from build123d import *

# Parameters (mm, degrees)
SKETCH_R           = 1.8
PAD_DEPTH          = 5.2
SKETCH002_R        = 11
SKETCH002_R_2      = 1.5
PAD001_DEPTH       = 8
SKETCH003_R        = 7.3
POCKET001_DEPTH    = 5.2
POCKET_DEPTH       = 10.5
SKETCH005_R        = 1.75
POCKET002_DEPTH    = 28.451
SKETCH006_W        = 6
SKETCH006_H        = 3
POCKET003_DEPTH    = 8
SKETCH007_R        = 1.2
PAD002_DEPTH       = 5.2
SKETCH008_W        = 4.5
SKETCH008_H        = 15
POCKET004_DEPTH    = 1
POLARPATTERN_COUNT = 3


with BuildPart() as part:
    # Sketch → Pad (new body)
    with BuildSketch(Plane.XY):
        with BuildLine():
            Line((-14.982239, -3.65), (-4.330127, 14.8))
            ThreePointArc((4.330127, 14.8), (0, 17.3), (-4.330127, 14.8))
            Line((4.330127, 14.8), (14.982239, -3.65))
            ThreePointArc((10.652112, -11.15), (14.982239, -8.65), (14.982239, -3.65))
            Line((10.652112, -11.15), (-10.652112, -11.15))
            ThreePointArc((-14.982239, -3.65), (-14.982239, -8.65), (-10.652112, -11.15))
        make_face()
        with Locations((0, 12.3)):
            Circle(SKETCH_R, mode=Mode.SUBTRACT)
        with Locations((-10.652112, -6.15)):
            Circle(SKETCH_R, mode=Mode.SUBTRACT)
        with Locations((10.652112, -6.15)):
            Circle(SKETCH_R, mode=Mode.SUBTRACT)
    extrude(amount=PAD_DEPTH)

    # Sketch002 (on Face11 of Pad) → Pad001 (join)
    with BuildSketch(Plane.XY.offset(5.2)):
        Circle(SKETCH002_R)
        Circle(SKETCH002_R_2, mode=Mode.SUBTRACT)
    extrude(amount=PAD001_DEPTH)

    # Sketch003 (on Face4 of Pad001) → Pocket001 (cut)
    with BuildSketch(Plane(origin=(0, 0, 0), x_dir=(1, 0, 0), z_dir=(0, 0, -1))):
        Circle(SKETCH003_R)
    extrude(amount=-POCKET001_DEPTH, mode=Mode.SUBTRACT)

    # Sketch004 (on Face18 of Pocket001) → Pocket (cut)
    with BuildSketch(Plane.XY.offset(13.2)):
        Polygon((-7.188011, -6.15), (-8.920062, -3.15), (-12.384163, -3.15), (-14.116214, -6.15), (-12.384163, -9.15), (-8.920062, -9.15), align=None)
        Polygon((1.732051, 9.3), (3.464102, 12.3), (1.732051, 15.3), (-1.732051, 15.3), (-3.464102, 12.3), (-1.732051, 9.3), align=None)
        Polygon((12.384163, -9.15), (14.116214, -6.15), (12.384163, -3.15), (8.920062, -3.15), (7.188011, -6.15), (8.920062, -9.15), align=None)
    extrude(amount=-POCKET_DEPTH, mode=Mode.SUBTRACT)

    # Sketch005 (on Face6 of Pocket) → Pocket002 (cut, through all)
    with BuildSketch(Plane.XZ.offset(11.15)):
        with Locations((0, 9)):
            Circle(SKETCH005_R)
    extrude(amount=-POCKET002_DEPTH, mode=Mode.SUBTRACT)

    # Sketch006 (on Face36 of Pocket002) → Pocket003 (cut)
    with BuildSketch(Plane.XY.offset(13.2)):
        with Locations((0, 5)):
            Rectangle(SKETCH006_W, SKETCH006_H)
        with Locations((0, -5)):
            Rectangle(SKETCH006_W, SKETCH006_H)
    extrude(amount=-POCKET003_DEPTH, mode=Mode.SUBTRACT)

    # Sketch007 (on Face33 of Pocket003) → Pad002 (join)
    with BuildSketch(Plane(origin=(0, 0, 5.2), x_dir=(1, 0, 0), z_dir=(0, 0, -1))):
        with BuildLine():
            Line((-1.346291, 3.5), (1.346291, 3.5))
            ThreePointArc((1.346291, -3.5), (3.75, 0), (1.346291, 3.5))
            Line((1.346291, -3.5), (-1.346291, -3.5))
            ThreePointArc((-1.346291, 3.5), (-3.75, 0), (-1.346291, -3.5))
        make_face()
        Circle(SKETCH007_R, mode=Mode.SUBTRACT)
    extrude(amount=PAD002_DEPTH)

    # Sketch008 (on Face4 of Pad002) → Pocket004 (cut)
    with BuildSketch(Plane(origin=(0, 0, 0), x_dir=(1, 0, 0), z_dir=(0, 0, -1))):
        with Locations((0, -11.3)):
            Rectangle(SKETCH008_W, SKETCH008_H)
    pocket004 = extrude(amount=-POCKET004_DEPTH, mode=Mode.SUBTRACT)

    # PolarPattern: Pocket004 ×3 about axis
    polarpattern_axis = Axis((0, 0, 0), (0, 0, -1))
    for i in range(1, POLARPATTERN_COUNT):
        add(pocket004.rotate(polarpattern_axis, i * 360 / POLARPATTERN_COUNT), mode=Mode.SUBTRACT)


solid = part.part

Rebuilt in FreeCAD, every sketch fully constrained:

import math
import FreeCAD as App
import Part
import Sketcher
Q = App.Units.Quantity

doc = App.newDocument("Part")
body = doc.addObject("PartDesign::Body", "Body")

# Sketch on XY plane
sketch1 = doc.addObject("Sketcher::SketchObject", "Sketch")
body.addObject(sketch1)
sketch1.AttachmentSupport = (doc.XY_Plane, [""])
sketch1.MapMode = "FlatFace"
sketch1.addGeometry([
    Part.LineSegment(App.Vector(-4.3, 14.8, 0), App.Vector(-15, -3.6, 0)),  # 0
    Part.ArcOfCircle(Part.Circle(App.Vector(-10.7, -6.2, 0), App.Vector(0, 0, 1), 5), math.radians(150), math.radians(270)),  # 1
    Part.LineSegment(App.Vector(-10.7, -11.2, 0), App.Vector(10.7, -11.2, 0)),  # 2
    Part.ArcOfCircle(Part.Circle(App.Vector(10.7, -6.2, 0), App.Vector(0, 0, 1), 5), math.radians(-90), math.radians(30)),  # 3
    Part.LineSegment(App.Vector(15, -3.6, 0), App.Vector(4.3, 14.8, 0)),  # 4
    Part.ArcOfCircle(Part.Circle(App.Vector(0, 12.3, 0), App.Vector(0, 0, 1), 5), math.radians(30), math.radians(150)),  # 5
    Part.Circle(App.Vector(10.7, -6.2, 0), App.Vector(0, 0, 1), 1.8),  # 6
    Part.Circle(App.Vector(-10.7, -6.2, 0), App.Vector(0, 0, 1), 1.8),  # 7
    Part.Circle(App.Vector(0, 12.3, 0), App.Vector(0, 0, 1), 1.8),  # 8
], False)
sketch1.addConstraint([
    Sketcher.Constraint("Tangent", 0, 2, 1, 1),
    Sketcher.Constraint("Tangent", 1, 2, 2, 1),
    Sketcher.Constraint("Tangent", 2, 2, 3, 1),
    Sketcher.Constraint("Tangent", 3, 2, 4, 1),
    Sketcher.Constraint("Tangent", 4, 2, 5, 1),
    Sketcher.Constraint("Tangent", 5, 2, 0, 1),
    Sketcher.Constraint("Horizontal", 2),
    Sketcher.Constraint("Coincident", 6, 3, 3, 3),
    Sketcher.Constraint("Coincident", 7, 3, 1, 3),
    Sketcher.Constraint("Coincident", 8, 3, 5, 3),
    Sketcher.Constraint("Equal", 1, 3),
    Sketcher.Constraint("Equal", 3, 5),
    Sketcher.Constraint("Equal", 6, 7),
    Sketcher.Constraint("Equal", 7, 8),
    Sketcher.Constraint("Symmetric", 0, 2, 3, 2, -2),
    Sketcher.Constraint("Radius", 1, Q("5 mm")),
    Sketcher.Constraint("Diameter", 6, Q("3.6 mm")),
    Sketcher.Constraint("Angle", 0, Q("-119.999999 deg")),
    Sketcher.Constraint("DistanceY", -1, 1, 5, 3, Q("12.3 mm")),
    Sketcher.Constraint("DistanceY", 1, 3, -1, 1, Q("6.15 mm")),
])
pad1 = doc.addObject("PartDesign::Pad", "Pad")
body.addObject(pad1)
pad1.Profile = sketch1
pad1.Length = 5.2

# Sketch on XY plane
sketch2 = doc.addObject("Sketcher::SketchObject", "Sketch001")
body.addObject(sketch2)
sketch2.AttachmentSupport = (doc.XY_Plane, [""])
sketch2.MapMode = "FlatFace"
sketch2.AttachmentOffset = App.Placement(App.Vector(0, 0, 5.2), App.Rotation())
sketch2.addGeometry([
    Part.Circle(App.Vector(0, 0, 0), App.Vector(0, 0, 1), 11),
    Part.Circle(App.Vector(0, 0, 0), App.Vector(0, 0, 1), 1.5),
], False)
sketch2.addConstraint([
    Sketcher.Constraint("Coincident", 0, 3, -1, 1),
    Sketcher.Constraint("Coincident", 1, 3, -1, 1),
    Sketcher.Constraint("Diameter", 0, Q("22 mm")),
    Sketcher.Constraint("Diameter", 1, Q("3 mm")),
])
pad2 = doc.addObject("PartDesign::Pad", "Pad001")
body.addObject(pad2)
pad2.Profile = sketch2
pad2.Length = 8

# Sketch on XY plane
sketch3 = doc.addObject("Sketcher::SketchObject", "Sketch002")
body.addObject(sketch3)
sketch3.AttachmentSupport = (doc.XY_Plane, [""])
sketch3.MapMode = "FlatFace"
sketch3.addGeometry(Part.Circle(App.Vector(0, 0, 0), App.Vector(0, 0, 1), 7), False)
sketch3.addConstraint([
    Sketcher.Constraint("Coincident", 0, 3, -1, 1),
    Sketcher.Constraint("Diameter", 0, Q("14.6 mm")),
])
pocket1 = doc.addObject("PartDesign::Pocket", "Pocket")
body.addObject(pocket1)
pocket1.Profile = sketch3
pocket1.Length = 5.2
pocket1.Reversed = True

# Sketch on XY plane
sketch4 = doc.addObject("Sketcher::SketchObject", "Sketch003")
body.addObject(sketch4)
sketch4.AttachmentSupport = (doc.XY_Plane, [""])
sketch4.MapMode = "FlatFace"
sketch4.AttachmentOffset = App.Placement(App.Vector(0, 0, 13.2), App.Rotation())
sketch4.addGeometry([
    Part.LineSegment(App.Vector(-7.2, -6.2, 0), App.Vector(-8.9, -3.1, 0)),  # 0
    Part.LineSegment(App.Vector(-8.9, -3.1, 0), App.Vector(-12.4, -3.1, 0)),  # 1
    Part.LineSegment(App.Vector(-12.4, -3.1, 0), App.Vector(-14.1, -6.2, 0)),  # 2
    Part.LineSegment(App.Vector(-14.1, -6.2, 0), App.Vector(-12.4, -9.2, 0)),  # 3
    Part.LineSegment(App.Vector(-12.4, -9.2, 0), App.Vector(-8.9, -9.2, 0)),  # 4
    Part.LineSegment(App.Vector(-8.9, -9.2, 0), App.Vector(-7.2, -6.2, 0)),  # 5
    Part.LineSegment(App.Vector(1.7, 9.3, 0), App.Vector(3.5, 12.3, 0)),  # 6
    Part.LineSegment(App.Vector(3.5, 12.3, 0), App.Vector(1.7, 15.3, 0)),  # 7
    Part.LineSegment(App.Vector(1.7, 15.3, 0), App.Vector(-1.7, 15.3, 0)),  # 8
    Part.LineSegment(App.Vector(-1.7, 15.3, 0), App.Vector(-3.5, 12.3, 0)),  # 9
    Part.LineSegment(App.Vector(-3.5, 12.3, 0), App.Vector(-1.7, 9.3, 0)),  # 10
    Part.LineSegment(App.Vector(-1.7, 9.3, 0), App.Vector(1.7, 9.3, 0)),  # 11
    Part.LineSegment(App.Vector(12.4, -9.2, 0), App.Vector(14.1, -6.2, 0)),  # 12
    Part.LineSegment(App.Vector(14.1, -6.2, 0), App.Vector(12.4, -3.1, 0)),  # 13
    Part.LineSegment(App.Vector(12.4, -3.1, 0), App.Vector(8.9, -3.1, 0)),  # 14
    Part.LineSegment(App.Vector(8.9, -3.1, 0), App.Vector(7.2, -6.2, 0)),  # 15
    Part.LineSegment(App.Vector(7.2, -6.2, 0), App.Vector(8.9, -9.2, 0)),  # 16
    Part.LineSegment(App.Vector(8.9, -9.2, 0), App.Vector(12.4, -9.2, 0)),  # 17
], False)
sketch4.addConstraint([
    Sketcher.Constraint("Coincident", 0, 2, 1, 1),
    Sketcher.Constraint("Coincident", 1, 2, 2, 1),
    Sketcher.Constraint("Coincident", 2, 2, 3, 1),
    Sketcher.Constraint("Coincident", 3, 2, 4, 1),
    Sketcher.Constraint("Coincident", 4, 2, 5, 1),
    Sketcher.Constraint("Coincident", 5, 2, 0, 1),
    Sketcher.Constraint("Coincident", 6, 2, 7, 1),
    Sketcher.Constraint("Coincident", 7, 2, 8, 1),
    Sketcher.Constraint("Coincident", 8, 2, 9, 1),
    Sketcher.Constraint("Coincident", 9, 2, 10, 1),
    Sketcher.Constraint("Coincident", 10, 2, 11, 1),
    Sketcher.Constraint("Coincident", 11, 2, 6, 1),
    Sketcher.Constraint("Coincident", 12, 2, 13, 1),
    Sketcher.Constraint("Coincident", 13, 2, 14, 1),
    Sketcher.Constraint("Coincident", 14, 2, 15, 1),
    Sketcher.Constraint("Coincident", 15, 2, 16, 1),
    Sketcher.Constraint("Coincident", 16, 2, 17, 1),
    Sketcher.Constraint("Coincident", 17, 2, 12, 1),
    Sketcher.Constraint("Horizontal", 1),
    Sketcher.Constraint("Horizontal", 4),
    Sketcher.Constraint("Horizontal", 8),
    Sketcher.Constraint("Horizontal", 11),
    Sketcher.Constraint("Horizontal", 14),
    Sketcher.Constraint("Horizontal", 17),
    Sketcher.Constraint("Symmetric", 6, 2, 9, 2, -2),
    Sketcher.Constraint("Symmetric", 2, 2, 12, 2, -2),
    Sketcher.Constraint("Symmetric", 1, 2, 13, 2, -2),
    Sketcher.Constraint("Symmetric", 5, 2, 15, 2, -2),
    Sketcher.Constraint("Symmetric", 4, 2, 16, 2, -2),
    Sketcher.Constraint("Parallel", 0, 3),
    Sketcher.Constraint("Parallel", 2, 5),
    Sketcher.Constraint("Parallel", 5, 6),
    Sketcher.Constraint("Parallel", 3, 7),
    Sketcher.Constraint("Parallel", 6, 9),
    Sketcher.Constraint("Parallel", 7, 10),
    Sketcher.Constraint("Parallel", 9, 12),
    Sketcher.Constraint("Parallel", 10, 13),
    Sketcher.Constraint("Parallel", 12, 15),
    Sketcher.Constraint("Horizontal", 2, 2, 5, 2),
    Sketcher.Constraint("Vertical", 1, 2, 3, 2),
    Sketcher.Constraint("Vertical", 8, 2, 10, 2),
    Sketcher.Constraint("Equal", 4, 8),
    Sketcher.Constraint("Equal", 5, 6),
    Sketcher.Constraint("Angle", 0, Q("120.000003 deg")),
    Sketcher.Constraint("DistanceY", 2, 2, 1, 2, Q("3 mm")),
    Sketcher.Constraint("DistanceY", -1, 1, 6, 2, Q("12.3 mm")),
    Sketcher.Constraint("DistanceY", 0, 2, -1, 1, Q("3.15 mm")),
    Sketcher.Constraint("DistanceX", 1, 2, 1, 1, Q("3.464101 mm")),
    Sketcher.Constraint("DistanceX", 5, 2, -1, 1, Q("7.188011 mm")),
])
pocket2 = doc.addObject("PartDesign::Pocket", "Pocket001")
body.addObject(pocket2)
pocket2.Profile = sketch4
pocket2.Length = 10.5

# Sketch on XZ plane
sketch5 = doc.addObject("Sketcher::SketchObject", "Sketch004")
body.addObject(sketch5)
sketch5.AttachmentSupport = (doc.XZ_Plane, [""])
sketch5.MapMode = "FlatFace"
sketch5.AttachmentOffset = App.Placement(App.Vector(0, 0, 11.15), App.Rotation())
sketch5.addGeometry(Part.Circle(App.Vector(0, 9, 0), App.Vector(0, 0, 1), 1.8), False)
sketch5.addConstraint([
    Sketcher.Constraint("PointOnObject", 0, 3, -2),
    Sketcher.Constraint("Diameter", 0, Q("3.5 mm")),
    Sketcher.Constraint("DistanceY", -1, 1, 0, 3, Q("9 mm")),
])
pocket3 = doc.addObject("PartDesign::Pocket", "Pocket002")
body.addObject(pocket3)
pocket3.Profile = sketch5
pocket3.Type = "ThroughAll"

# Sketch on XY plane
sketch6 = doc.addObject("Sketcher::SketchObject", "Sketch005")
body.addObject(sketch6)
sketch6.AttachmentSupport = (doc.XY_Plane, [""])
sketch6.MapMode = "FlatFace"
sketch6.AttachmentOffset = App.Placement(App.Vector(0, 0, 13.2), App.Rotation())
sketch6.addGeometry([
    Part.LineSegment(App.Vector(-3, 6.5, 0), App.Vector(-3, 3.5, 0)),  # 0
    Part.LineSegment(App.Vector(-3, 3.5, 0), App.Vector(3, 3.5, 0)),  # 1
    Part.LineSegment(App.Vector(3, 3.5, 0), App.Vector(3, 6.5, 0)),  # 2
    Part.LineSegment(App.Vector(3, 6.5, 0), App.Vector(-3, 6.5, 0)),  # 3
    Part.LineSegment(App.Vector(-3, -3.5, 0), App.Vector(-3, -6.5, 0)),  # 4
    Part.LineSegment(App.Vector(-3, -6.5, 0), App.Vector(3, -6.5, 0)),  # 5
    Part.LineSegment(App.Vector(3, -6.5, 0), App.Vector(3, -3.5, 0)),  # 6
    Part.LineSegment(App.Vector(3, -3.5, 0), App.Vector(-3, -3.5, 0)),  # 7
], False)
sketch6.addConstraint([
    Sketcher.Constraint("Coincident", 0, 2, 1, 1),
    Sketcher.Constraint("Coincident", 1, 2, 2, 1),
    Sketcher.Constraint("Coincident", 2, 2, 3, 1),
    Sketcher.Constraint("Coincident", 3, 2, 0, 1),
    Sketcher.Constraint("Coincident", 4, 2, 5, 1),
    Sketcher.Constraint("Coincident", 5, 2, 6, 1),
    Sketcher.Constraint("Coincident", 6, 2, 7, 1),
    Sketcher.Constraint("Coincident", 7, 2, 4, 1),
    Sketcher.Constraint("Vertical", 0),
    Sketcher.Constraint("Horizontal", 1),
    Sketcher.Constraint("Vertical", 2),
    Sketcher.Constraint("Horizontal", 3),
    Sketcher.Constraint("Vertical", 4),
    Sketcher.Constraint("Horizontal", 5),
    Sketcher.Constraint("Vertical", 6),
    Sketcher.Constraint("Horizontal", 7),
    Sketcher.Constraint("Symmetric", 2, 2, 4, 2, -1, 1),
    Sketcher.Constraint("Symmetric", 0, 2, 6, 2, -1, 1),
    Sketcher.Constraint("Vertical", 3, 2, 4, 2),
    Sketcher.Constraint("DistanceX", 1, 1, 1, 2, Q("6 mm")),
    Sketcher.Constraint("DistanceY", 0, 2, 0, 1, Q("3 mm")),
    Sketcher.Constraint("DistanceY", 4, 2, 0, 2, Q("10 mm")),
])
pocket4 = doc.addObject("PartDesign::Pocket", "Pocket003")
body.addObject(pocket4)
pocket4.Profile = sketch6
pocket4.Length = 8

# Sketch on XY plane
sketch7 = doc.addObject("Sketcher::SketchObject", "Sketch006")
body.addObject(sketch7)
sketch7.AttachmentSupport = (doc.XY_Plane, [""])
sketch7.MapMode = "FlatFace"
sketch7.AttachmentOffset = App.Placement(App.Vector(0, 0, 5.2), App.Rotation())
sketch7.addGeometry([
    Part.LineSegment(App.Vector(1.3, -3.5, 0), App.Vector(-1.3, -3.5, 0)),  # 0
    Part.ArcOfCircle(Part.Circle(App.Vector(0, 0, 0), App.Vector(0, 0, 1), 3.7), math.radians(111), math.radians(249)),  # 1
    Part.LineSegment(App.Vector(-1.3, 3.5, 0), App.Vector(1.3, 3.5, 0)),  # 2
    Part.ArcOfCircle(Part.Circle(App.Vector(0, 0, 0), App.Vector(0, 0, 1), 3.7), math.radians(-69), math.radians(69)),  # 3
    Part.Circle(App.Vector(0, 0, 0), App.Vector(0, 0, 1), 1.2),  # 4
], False)
sketch7.addConstraint([
    Sketcher.Constraint("Coincident", 0, 2, 1, 2),
    Sketcher.Constraint("Coincident", 1, 1, 2, 1),
    Sketcher.Constraint("Coincident", 2, 2, 3, 2),
    Sketcher.Constraint("Coincident", 3, 1, 0, 1),
    Sketcher.Constraint("Horizontal", 0),
    Sketcher.Constraint("Horizontal", 2),
    Sketcher.Constraint("Coincident", 1, 3, -1, 1),
    Sketcher.Constraint("Coincident", 3, 3, -1, 1),
    Sketcher.Constraint("Coincident", 4, 3, -1, 1),
    Sketcher.Constraint("Equal", 1, 3),
    Sketcher.Constraint("Vertical", 0, 2, 1, 1),
    Sketcher.Constraint("Diameter", 4, Q("2.4 mm")),
    Sketcher.Constraint("Radius", 1, Q("3.75 mm")),
    Sketcher.Constraint("DistanceY", 0, 2, 1, 1, Q("7 mm")),
])
pad3 = doc.addObject("PartDesign::Pad", "Pad002")
body.addObject(pad3)
pad3.Profile = sketch7
pad3.Length = 5.2
pad3.Reversed = True

# Sketch on XY plane
sketch8 = doc.addObject("Sketcher::SketchObject", "Sketch007")
body.addObject(sketch8)
sketch8.AttachmentSupport = (doc.XY_Plane, [""])
sketch8.MapMode = "FlatFace"
sketch8.addGeometry([
    Part.LineSegment(App.Vector(-2.2, 3.8, 0), App.Vector(-2.2, 18.8, 0)),
    Part.LineSegment(App.Vector(-2.2, 18.8, 0), App.Vector(2.2, 18.8, 0)),
    Part.LineSegment(App.Vector(2.2, 18.8, 0), App.Vector(2.2, 3.8, 0)),
    Part.LineSegment(App.Vector(2.2, 3.8, 0), App.Vector(-2.2, 3.8, 0)),
], False)
sketch8.addConstraint([
    Sketcher.Constraint("Coincident", 0, 2, 1, 1),
    Sketcher.Constraint("Coincident", 1, 2, 2, 1),
    Sketcher.Constraint("Coincident", 2, 2, 3, 1),
    Sketcher.Constraint("Coincident", 3, 2, 0, 1),
    Sketcher.Constraint("Vertical", 0),
    Sketcher.Constraint("Horizontal", 1),
    Sketcher.Constraint("Vertical", 2),
    Sketcher.Constraint("Horizontal", 3),
    Sketcher.Constraint("DistanceY", 0, 1, 0, 2, Q("15 mm")),
    Sketcher.Constraint("DistanceX", 1, 1, 1, 2, Q("4.5 mm")),
    Sketcher.Constraint("DistanceY", -1, 1, 0, 2, Q("18.8 mm")),
    Sketcher.Constraint("DistanceX", 0, 2, -1, 1, Q("2.25 mm")),
])
pocket5 = doc.addObject("PartDesign::Pocket", "Pocket004")
body.addObject(pocket5)
pocket5.Profile = sketch8
pocket5.Length = 1
pocket5.Reversed = True
doc.recompute()

polarpattern = doc.addObject("PartDesign::PolarPattern", "PolarPattern")
body.addObject(polarpattern)
polarpattern.Originals = [pocket5]
polarpattern.Axis = (doc.Z_Axis, [""])
polarpattern.Angle = 360
polarpattern.Occurrences = 3
body.Tip = polarpattern

doc.recompute()
